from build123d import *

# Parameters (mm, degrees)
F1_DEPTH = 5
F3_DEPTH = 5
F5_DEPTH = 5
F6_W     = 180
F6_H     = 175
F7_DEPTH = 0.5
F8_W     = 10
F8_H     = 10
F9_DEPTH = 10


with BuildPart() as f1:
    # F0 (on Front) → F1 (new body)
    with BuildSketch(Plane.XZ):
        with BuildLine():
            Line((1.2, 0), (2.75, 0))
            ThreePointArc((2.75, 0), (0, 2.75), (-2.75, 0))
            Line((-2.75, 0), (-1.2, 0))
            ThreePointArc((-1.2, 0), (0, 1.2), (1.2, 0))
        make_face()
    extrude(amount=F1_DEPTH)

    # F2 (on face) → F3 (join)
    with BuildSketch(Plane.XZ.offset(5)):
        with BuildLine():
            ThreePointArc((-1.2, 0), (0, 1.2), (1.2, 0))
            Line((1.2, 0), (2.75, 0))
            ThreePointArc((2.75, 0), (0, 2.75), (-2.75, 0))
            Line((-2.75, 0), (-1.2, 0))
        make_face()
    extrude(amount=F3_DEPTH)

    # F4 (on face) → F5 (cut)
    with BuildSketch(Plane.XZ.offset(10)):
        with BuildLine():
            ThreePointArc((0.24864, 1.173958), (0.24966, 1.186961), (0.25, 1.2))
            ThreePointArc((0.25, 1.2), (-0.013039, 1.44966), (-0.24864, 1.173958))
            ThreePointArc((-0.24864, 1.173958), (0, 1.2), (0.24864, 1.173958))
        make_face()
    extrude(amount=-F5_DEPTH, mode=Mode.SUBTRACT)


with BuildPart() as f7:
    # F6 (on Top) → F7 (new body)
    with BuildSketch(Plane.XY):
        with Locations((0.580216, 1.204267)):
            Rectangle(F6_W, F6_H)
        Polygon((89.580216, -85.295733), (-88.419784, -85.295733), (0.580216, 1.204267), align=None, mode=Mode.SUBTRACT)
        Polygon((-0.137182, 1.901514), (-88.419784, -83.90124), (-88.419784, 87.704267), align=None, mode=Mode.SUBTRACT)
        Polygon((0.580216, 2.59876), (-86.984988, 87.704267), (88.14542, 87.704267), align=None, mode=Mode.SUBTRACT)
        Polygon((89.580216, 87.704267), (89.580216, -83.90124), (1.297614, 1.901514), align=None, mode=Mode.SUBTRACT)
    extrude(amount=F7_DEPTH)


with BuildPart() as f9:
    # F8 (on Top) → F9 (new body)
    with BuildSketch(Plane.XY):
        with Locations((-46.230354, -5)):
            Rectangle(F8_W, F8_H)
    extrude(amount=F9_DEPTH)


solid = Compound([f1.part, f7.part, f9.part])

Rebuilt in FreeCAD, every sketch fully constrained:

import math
import FreeCAD as App
import Part
import Sketcher

V = App.Vector


def add_polygon(sketch, points):
    """Adds a closed chain of lines whose ends are joined by coincident constraints."""
    first, n = sketch.GeometryCount, len(points)
    for a, b in zip(points, points[1:] + points[:1]):
        sketch.addGeometry(Part.LineSegment(App.Vector(*a, 0), App.Vector(*b, 0)), False)
    for i in range(n):
        sketch.addConstraint(Sketcher.Constraint("Coincident", first + i, 2, first + (i + 1) % n, 1))

doc = App.newDocument("Part")
params = doc.addObject("Spreadsheet::Sheet", "Params")
for row, (alias, value) in enumerate([
    ("sketch1_radius", "1.2 mm"),
    ("sketch1_radius2", "2.75 mm"),
    ("pad1_length", "5 mm"),
    ("sketch2_radius", "1.2 mm"),
    ("sketch2_radius2", "2.75 mm"),
    ("pad2_length", "5 mm"),
    ("sketch3_radius", "0.25 mm"),
    ("pocket1_length", "5 mm"),
    ("sketch4_width", "180 mm"),
    ("sketch4_width2", "178 mm"),
    ("sketch4_height", "175 mm"),
    ("pad3_length", "0.5 mm"),
    ("sketch5_width", "10 mm"),
    ("pad4_length", "10 mm"),
], start=1):
    params.set(f"A{row}", alias)
    params.set(f"B{row}", "=" + value)
    params.setAlias(f"B{row}", alias)

body = doc.addObject("PartDesign::Body", "Body")

# Sketch on XZ plane
sketch1 = body.newObject("Sketcher::SketchObject", "Sketch")
sketch1.AttachmentSupport = (doc.getObject("XZ_Plane"), [""])
sketch1.MapMode = "FlatFace"
sketch1.addGeometry([
    Part.LineSegment(V(1.2, 0, 0), V(2.8, 0, 0)),
    Part.ArcOfCircle(Part.Circle(V(0, 0, 0), V(0, 0, 1), 2.8), math.radians(0), math.radians(180)),
    Part.LineSegment(V(-2.8, 0, 0), V(-1.2, 0, 0)),
    Part.ArcOfCircle(Part.Circle(V(0, 0, 0), V(0, 0, 1), 1.2), math.radians(0), math.radians(180)),
], False)
sketch1.addConstraint([
    Sketcher.Constraint("Coincident", 0, 2, 1, 1),
    Sketcher.Constraint("Coincident", 1, 2, 2, 1),
    Sketcher.Constraint("Coincident", 2, 2, 3, 2),
    Sketcher.Constraint("Coincident", 3, 1, 0, 1),
    Sketcher.Constraint("Horizontal", 0),
    Sketcher.Constraint("Horizontal", 2),
    Sketcher.Constraint("Coincident", 1, 3, -1, 1),
    Sketcher.Constraint("Coincident", 3, 3, -1, 1),
    Sketcher.Constraint("PointOnObject", 0, 2, -1),
    Sketcher.Constraint("PointOnObject", 1, 2, -1),
    Sketcher.Constraint("Radius", 3, 1.2),
    Sketcher.Constraint("Radius", 1, 2.75),
])
sketch1.setExpression("Constraints[10]", "Params.sketch1_radius")
sketch1.setExpression("Constraints[11]", "Params.sketch1_radius2")
pad1 = body.newObject("PartDesign::Pad", "Pad")
pad1.Profile = sketch1
pad1.setExpression("Length", "Params.pad1_length")

# Sketch on XZ plane
sketch2 = body.newObject("Sketcher::SketchObject", "Sketch001")
sketch2.AttachmentSupport = (doc.getObject("XZ_Plane"), [""])
sketch2.MapMode = "FlatFace"
sketch2.AttachmentOffset = App.Placement(V(0, 0, 5), App.Rotation())
sketch2.addGeometry([
    Part.ArcOfCircle(Part.Circle(V(0, 0, 0), V(0, 0, 1), 1.2), math.radians(0), math.radians(180)),
    Part.LineSegment(V(1.2, 0, 0), V(2.8, 0, 0)),
    Part.ArcOfCircle(Part.Circle(V(0, 0, 0), V(0, 0, 1), 2.8), math.radians(0), math.radians(180)),
    Part.LineSegment(V(-2.8, 0, 0), V(-1.2, 0, 0)),
], False)
sketch2.addConstraint([
    Sketcher.Constraint("Coincident", 0, 1, 1, 1),
    Sketcher.Constraint("Coincident", 1, 2, 2, 1),
    Sketcher.Constraint("Coincident", 2, 2, 3, 1),
    Sketcher.Constraint("Coincident", 3, 2, 0, 2),
    Sketcher.Constraint("Horizontal", 1),
    Sketcher.Constraint("Horizontal", 3),
    Sketcher.Constraint("Coincident", 0, 3, -1, 1),
    Sketcher.Constraint("Coincident", 2, 3, -1, 1),
    Sketcher.Constraint("PointOnObject", 0, 1, -1),
    Sketcher.Constraint("PointOnObject", 2, 2, -1),
    Sketcher.Constraint("Radius", 0, 1.2),
    Sketcher.Constraint("Radius", 2, 2.75),
])
sketch2.setExpression("Constraints[10]", "Params.sketch2_radius")
sketch2.setExpression("Constraints[11]", "Params.sketch2_radius2")
pad2 = body.newObject("PartDesign::Pad", "Pad001")
pad2.Profile = sketch2
pad2.setExpression("Length", "Params.pad2_length")

# Sketch on XZ plane
sketch3 = body.newObject("Sketcher::SketchObject", "Sketch002")
sketch3.AttachmentSupport = (doc.getObject("XZ_Plane"), [""])
sketch3.MapMode = "FlatFace"
sketch3.AttachmentOffset = App.Placement(V(0, 0, 10), App.Rotation())
sketch3.addGeometry([
    Part.ArcOfCircle(Part.Circle(V(0, 1.2, 0), V(0, 0, 1), 0.25), math.radians(-5.98), math.radians(0)),
    Part.ArcOfCircle(Part.Circle(V(0, 1.2, 0), V(0, 0, 1), 0.25), math.radians(0), math.radians(186)),
    Part.ArcOfCircle(Part.Circle(V(0, 0, 0), V(0, 0, 1), 1.2), math.radians(78), math.radians(102)),
], False)
sketch3.addConstraint([
    Sketcher.Constraint("Coincident", 0, 2, 1, 1),
    Sketcher.Constraint("Coincident", 1, 2, 2, 2),
    Sketcher.Constraint("Coincident", 2, 1, 0, 1),
    Sketcher.Constraint("Symmetric", 1, 2, 2, 1, -2),
    Sketcher.Constraint("PointOnObject", 1, 3, -2),
    Sketcher.Constraint("Horizontal", 1, 3, 0, 2),
    Sketcher.Constraint("Radius", 1, 0.25),
    Sketcher.Constraint("DistanceY", -1, 1, 1, 3, 1.2),
    Sketcher.Constraint("Radius", 0, 0.249834),
    Sketcher.Constraint("Radius", 2, 1.199985),
    Sketcher.Constraint("DistanceX", 1, 2, -1, 1, 0.24864),
])
sketch3.setExpression("Constraints[6]", "Params.sketch3_radius")
pocket1 = body.newObject("PartDesign::Pocket", "Pocket")
pocket1.Profile = sketch3
pocket1.setExpression("Length", "Params.pocket1_length")
body2 = doc.addObject("PartDesign::Body", "Body001")

# Sketch on XY plane
sketch4 = body2.newObject("Sketcher::SketchObject", "Sketch003")
sketch4.AttachmentSupport = (doc.getObject("XY_Plane001"), [""])
sketch4.MapMode = "FlatFace"
add_polygon(sketch4, [(-89, 89), (-89, -86), (91, -86), (91, 89)])  # lines 0-3
add_polygon(sketch4, [(1, 1), (90, -85), (-88, -85)])  # lines 4-6
add_polygon(sketch4, [(-88, 88), (0, 2), (-88, -84)])  # lines 7-9
add_polygon(sketch4, [(1, 2), (90, 88), (90, -84)])  # lines 10-12
add_polygon(sketch4, [(88, 88), (1, 3), (-87, 88)])  # lines 13-15
sketch4.addConstraint([
    Sketcher.Constraint("Vertical", 0),
    Sketcher.Constraint("Horizontal", 1),
    Sketcher.Constraint("Vertical", 2),
    Sketcher.Constraint("Horizontal", 3),
    Sketcher.Constraint("Horizontal", 5),
    Sketcher.Constraint("Vertical", 9),
    Sketcher.Constraint("Vertical", 11),
    Sketcher.Constraint("Horizontal", 15),
    Sketcher.Constraint("Parallel", 4, 7),
    Sketcher.Constraint("Parallel", 6, 8),
    Sketcher.Constraint("Parallel", 8, 10),
    Sketcher.Constraint("Parallel", 7, 12),
    Sketcher.Constraint("Parallel", 10, 13),
    Sketcher.Constraint("Parallel", 12, 14),
    Sketcher.Constraint("Horizontal", 9, 2, 10, 2),
    Sketcher.Constraint("Horizontal", 8, 2, 11, 2),
    Sketcher.Constraint("Horizontal", 7, 2, 12, 2),
    Sketcher.Constraint("Horizontal", 10, 2, 14, 2),
    Sketcher.Constraint("Vertical", 5, 2, 8, 2),
    Sketcher.Constraint("Vertical", 4, 2, 10, 2),
    Sketcher.Constraint("Vertical", 6, 2, 13, 2),
    Sketcher.Constraint("DistanceX", 1, 1, 1, 2, 180.0),
    Sketcher.Constraint("DistanceX", 5, 2, 5, 1, 178.0),
    Sketcher.Constraint("DistanceY", 0, 2, 0, 1, 175.0),
    Sketcher.Constraint("DistanceX", 4, 2, 1, 2, 1.0),
    Sketcher.Constraint("DistanceY", 1, 2, 4, 2, 1.0),
    Sketcher.Constraint("DistanceY", 9, 2, 3, 2, 1.0),
    Sketcher.Constraint("DistanceY", 4, 2, 6, 2, 86.5),
    Sketcher.Constraint("DistanceX", 6, 2, 12, 2, 0.717398),
    Sketcher.Constraint("DistanceX", 15, 1, 15, 2, 175.130408),
    Sketcher.Constraint("DistanceY", 8, 2, -1, 1, 83.90124),
    Sketcher.Constraint("DistanceX", 14, 2, -1, 1, 86.984988),
])
sketch4.setExpression("Constraints[37]", "Params.sketch4_width")
sketch4.setExpression("Constraints[38]", "Params.sketch4_width2")
sketch4.setExpression("Constraints[39]", "Params.sketch4_height")
pad3 = body2.newObject("PartDesign::Pad", "Pad002")
pad3.Profile = sketch4
pad3.setExpression("Length", "Params.pad3_length")
body3 = doc.addObject("PartDesign::Body", "Body002")

# Sketch on XY plane
sketch5 = body3.newObject("Sketcher::SketchObject", "Sketch004")
sketch5.AttachmentSupport = (doc.getObject("XY_Plane002"), [""])
sketch5.MapMode = "FlatFace"
add_polygon(sketch5, [(-51, 0), (-51, -10), (-41, -10), (-41, 0)])  # lines 0-3
sketch5.addConstraint([
    Sketcher.Constraint("Vertical", 0),
    Sketcher.Constraint("Horizontal", 1),
    Sketcher.Constraint("Vertical", 2),
    Sketcher.Constraint("Horizontal", 3),
    Sketcher.Constraint("PointOnObject", 2, 2, -1),
    Sketcher.Constraint("Equal", 3, 0),
    Sketcher.Constraint("DistanceX", 1, 1, 1, 2, 10.0),
    Sketcher.Constraint("DistanceX", 0, 2, -1, 1, 51.230354),
])
sketch5.setExpression("Constraints[10]", "Params.sketch5_width")
pad4 = body3.newObject("PartDesign::Pad", "Pad003")
pad4.Profile = sketch5
pad4.setExpression("Length", "Params.pad4_length")

doc.recompute()
